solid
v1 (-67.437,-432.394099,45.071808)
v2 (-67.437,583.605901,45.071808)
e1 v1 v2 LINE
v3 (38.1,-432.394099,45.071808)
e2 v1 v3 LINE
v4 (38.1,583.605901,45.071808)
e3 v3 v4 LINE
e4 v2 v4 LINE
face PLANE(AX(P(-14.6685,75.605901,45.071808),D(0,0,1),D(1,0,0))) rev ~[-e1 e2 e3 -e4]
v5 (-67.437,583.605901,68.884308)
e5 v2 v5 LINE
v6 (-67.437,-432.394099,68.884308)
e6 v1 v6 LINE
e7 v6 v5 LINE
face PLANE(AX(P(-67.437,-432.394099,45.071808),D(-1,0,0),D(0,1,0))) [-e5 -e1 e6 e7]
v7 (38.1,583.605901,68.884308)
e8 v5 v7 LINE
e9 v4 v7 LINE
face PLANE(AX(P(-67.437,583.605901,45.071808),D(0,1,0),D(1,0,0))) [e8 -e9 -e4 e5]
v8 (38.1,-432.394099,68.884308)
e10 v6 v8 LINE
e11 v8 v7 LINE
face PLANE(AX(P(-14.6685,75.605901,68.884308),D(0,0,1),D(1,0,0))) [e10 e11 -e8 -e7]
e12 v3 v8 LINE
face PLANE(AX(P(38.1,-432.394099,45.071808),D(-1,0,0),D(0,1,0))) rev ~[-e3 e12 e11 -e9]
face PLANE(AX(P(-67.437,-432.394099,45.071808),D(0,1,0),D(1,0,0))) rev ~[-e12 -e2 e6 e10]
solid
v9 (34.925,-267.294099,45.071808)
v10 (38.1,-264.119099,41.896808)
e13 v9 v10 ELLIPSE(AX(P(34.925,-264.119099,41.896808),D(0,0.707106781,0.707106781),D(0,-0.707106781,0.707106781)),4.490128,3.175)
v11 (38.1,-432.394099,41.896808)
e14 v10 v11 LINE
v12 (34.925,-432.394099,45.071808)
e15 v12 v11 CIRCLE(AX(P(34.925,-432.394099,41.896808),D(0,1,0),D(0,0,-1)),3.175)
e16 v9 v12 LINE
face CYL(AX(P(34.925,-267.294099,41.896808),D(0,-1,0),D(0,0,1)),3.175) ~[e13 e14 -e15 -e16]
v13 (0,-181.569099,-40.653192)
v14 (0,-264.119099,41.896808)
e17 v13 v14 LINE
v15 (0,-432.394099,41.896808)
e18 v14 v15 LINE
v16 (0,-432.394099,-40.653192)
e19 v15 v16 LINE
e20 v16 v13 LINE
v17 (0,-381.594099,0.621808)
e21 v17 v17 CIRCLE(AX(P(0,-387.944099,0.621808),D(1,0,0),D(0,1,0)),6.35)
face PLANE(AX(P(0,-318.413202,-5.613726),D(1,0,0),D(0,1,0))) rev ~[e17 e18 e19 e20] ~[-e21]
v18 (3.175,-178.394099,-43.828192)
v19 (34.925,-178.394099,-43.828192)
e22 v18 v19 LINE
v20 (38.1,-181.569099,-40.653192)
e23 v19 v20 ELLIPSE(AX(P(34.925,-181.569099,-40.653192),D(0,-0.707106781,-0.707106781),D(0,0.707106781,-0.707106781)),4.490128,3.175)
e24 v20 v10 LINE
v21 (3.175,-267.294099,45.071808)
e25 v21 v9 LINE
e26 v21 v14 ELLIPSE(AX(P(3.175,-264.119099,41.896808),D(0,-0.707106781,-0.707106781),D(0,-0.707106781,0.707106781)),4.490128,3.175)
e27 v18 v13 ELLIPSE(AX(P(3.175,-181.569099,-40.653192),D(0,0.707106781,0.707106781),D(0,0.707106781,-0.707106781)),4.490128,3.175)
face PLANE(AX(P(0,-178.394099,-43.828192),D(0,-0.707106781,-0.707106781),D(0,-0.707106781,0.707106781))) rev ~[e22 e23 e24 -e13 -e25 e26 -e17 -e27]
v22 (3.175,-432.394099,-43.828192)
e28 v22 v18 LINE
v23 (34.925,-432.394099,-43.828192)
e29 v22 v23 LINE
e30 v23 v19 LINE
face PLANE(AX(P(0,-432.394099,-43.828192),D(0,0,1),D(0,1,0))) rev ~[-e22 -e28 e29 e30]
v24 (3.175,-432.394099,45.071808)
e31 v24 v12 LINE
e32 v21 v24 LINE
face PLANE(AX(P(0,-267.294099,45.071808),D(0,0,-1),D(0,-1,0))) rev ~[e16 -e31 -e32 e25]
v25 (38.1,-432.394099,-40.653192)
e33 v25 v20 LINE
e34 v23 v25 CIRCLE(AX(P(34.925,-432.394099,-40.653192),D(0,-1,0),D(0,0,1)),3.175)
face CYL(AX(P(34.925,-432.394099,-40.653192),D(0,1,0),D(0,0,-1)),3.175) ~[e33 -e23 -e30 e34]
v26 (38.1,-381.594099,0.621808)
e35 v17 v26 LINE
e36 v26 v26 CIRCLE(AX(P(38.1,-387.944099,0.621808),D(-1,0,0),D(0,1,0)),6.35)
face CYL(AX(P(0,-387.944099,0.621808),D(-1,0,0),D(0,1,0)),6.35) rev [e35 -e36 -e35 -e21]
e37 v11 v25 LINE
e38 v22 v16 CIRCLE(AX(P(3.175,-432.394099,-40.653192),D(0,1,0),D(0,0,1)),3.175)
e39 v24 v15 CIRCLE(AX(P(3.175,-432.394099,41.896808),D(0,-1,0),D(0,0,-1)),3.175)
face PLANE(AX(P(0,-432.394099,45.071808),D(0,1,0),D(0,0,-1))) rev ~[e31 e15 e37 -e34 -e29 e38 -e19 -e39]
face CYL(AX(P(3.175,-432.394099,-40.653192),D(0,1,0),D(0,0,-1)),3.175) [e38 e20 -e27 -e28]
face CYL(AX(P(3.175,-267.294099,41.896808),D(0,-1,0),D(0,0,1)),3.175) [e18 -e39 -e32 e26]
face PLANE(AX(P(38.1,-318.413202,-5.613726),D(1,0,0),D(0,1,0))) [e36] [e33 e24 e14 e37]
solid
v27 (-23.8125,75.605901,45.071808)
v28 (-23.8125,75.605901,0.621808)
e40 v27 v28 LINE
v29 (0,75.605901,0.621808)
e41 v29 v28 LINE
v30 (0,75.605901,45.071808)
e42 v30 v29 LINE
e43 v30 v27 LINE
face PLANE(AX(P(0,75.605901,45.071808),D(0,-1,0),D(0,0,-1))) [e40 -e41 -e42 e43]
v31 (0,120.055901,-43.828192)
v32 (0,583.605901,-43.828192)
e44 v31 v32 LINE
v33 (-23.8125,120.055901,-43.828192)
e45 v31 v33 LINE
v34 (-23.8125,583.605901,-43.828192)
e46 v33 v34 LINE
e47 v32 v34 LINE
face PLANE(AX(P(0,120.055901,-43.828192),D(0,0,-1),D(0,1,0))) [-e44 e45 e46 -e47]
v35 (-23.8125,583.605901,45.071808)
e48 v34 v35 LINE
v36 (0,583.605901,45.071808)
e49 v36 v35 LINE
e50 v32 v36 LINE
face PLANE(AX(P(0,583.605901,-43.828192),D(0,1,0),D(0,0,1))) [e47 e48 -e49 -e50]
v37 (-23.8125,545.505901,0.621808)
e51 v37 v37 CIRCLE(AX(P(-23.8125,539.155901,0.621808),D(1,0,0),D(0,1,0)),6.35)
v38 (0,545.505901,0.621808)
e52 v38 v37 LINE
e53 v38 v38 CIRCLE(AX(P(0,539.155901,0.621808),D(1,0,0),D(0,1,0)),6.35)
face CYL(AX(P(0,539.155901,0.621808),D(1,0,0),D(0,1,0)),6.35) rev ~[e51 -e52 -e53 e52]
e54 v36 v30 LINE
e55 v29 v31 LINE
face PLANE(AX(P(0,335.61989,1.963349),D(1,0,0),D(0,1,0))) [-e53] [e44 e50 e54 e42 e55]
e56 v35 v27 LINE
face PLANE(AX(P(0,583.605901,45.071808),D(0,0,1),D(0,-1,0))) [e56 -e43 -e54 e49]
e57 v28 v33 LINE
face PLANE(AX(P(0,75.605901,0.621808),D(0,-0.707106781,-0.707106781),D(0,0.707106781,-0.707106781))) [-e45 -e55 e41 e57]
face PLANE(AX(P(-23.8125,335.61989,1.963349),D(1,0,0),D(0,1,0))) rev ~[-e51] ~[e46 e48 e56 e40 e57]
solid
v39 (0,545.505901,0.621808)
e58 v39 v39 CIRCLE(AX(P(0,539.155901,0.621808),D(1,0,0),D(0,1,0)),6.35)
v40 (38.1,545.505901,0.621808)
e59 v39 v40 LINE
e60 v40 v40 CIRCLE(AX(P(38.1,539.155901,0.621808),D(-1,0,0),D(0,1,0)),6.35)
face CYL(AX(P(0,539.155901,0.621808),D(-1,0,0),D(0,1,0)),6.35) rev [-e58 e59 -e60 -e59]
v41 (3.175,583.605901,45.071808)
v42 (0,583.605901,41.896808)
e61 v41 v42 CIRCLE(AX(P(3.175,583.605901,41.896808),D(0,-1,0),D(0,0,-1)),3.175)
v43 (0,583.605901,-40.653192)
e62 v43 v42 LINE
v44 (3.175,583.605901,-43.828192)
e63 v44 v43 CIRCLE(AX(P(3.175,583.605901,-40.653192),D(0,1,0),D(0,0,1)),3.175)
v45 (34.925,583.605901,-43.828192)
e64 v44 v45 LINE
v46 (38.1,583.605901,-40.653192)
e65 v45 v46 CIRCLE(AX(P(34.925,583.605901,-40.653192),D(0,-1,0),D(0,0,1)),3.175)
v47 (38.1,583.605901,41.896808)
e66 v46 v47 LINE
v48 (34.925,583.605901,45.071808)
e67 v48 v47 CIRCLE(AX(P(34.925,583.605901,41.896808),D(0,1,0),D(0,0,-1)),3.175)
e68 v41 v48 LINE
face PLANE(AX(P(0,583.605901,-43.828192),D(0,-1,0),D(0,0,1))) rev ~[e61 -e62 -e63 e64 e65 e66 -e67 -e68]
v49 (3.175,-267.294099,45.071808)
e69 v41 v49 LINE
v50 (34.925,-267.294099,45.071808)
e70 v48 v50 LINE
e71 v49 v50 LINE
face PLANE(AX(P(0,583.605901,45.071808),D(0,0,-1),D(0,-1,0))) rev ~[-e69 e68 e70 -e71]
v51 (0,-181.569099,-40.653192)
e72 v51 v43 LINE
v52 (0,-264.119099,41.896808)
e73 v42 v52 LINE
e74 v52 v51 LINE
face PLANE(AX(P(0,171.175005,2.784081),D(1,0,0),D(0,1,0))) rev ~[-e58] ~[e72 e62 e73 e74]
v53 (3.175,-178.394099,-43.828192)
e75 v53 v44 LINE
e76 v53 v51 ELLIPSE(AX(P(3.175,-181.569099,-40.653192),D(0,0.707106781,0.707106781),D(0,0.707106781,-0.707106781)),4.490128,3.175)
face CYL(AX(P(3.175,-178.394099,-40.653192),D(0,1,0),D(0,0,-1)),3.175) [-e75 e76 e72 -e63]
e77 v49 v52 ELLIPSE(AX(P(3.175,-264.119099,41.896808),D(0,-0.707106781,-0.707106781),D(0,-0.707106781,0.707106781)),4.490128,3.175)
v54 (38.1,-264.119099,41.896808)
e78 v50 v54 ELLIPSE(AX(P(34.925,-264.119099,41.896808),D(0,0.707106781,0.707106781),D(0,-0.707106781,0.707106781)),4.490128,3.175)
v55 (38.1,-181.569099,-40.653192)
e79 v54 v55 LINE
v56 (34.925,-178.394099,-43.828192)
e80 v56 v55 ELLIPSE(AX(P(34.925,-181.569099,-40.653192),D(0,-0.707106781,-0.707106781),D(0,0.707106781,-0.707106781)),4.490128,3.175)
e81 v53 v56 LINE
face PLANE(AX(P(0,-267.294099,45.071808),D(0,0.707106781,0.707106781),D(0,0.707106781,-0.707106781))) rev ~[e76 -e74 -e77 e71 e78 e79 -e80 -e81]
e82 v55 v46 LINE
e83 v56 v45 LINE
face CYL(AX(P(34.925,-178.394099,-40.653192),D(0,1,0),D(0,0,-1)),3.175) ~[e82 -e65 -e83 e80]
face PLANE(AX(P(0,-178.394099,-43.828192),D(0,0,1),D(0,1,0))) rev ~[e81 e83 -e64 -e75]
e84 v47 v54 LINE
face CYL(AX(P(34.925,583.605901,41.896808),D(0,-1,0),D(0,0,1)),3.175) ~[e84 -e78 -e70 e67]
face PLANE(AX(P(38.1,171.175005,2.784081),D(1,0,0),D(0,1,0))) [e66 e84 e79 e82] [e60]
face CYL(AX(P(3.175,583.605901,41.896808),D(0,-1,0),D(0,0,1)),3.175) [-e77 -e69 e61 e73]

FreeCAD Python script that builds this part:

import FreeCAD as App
import Part
import Sketcher
from FreeCAD import Vector
Q = App.Units.Quantity


def edges_at(feature, points):
    """Names of the edges that pass closest to the given points."""
    edges = feature.Shape.Edges
    near = lambda p: min(range(len(edges)), key=lambda i: edges[i].distToShape(Part.Vertex(*p))[0])
    return sorted({f"Edge{near(p) + 1}" for p in points})


def add_polygon(sketch, points):
    """Adds a closed chain of lines whose ends are joined by coincident constraints."""
    first, n = sketch.GeometryCount, len(points)
    for a, b in zip(points, points[1:] + points[:1]):
        sketch.addGeometry(Part.LineSegment(App.Vector(*a, 0), App.Vector(*b, 0)), False)
    for i in range(n):
        sketch.addConstraint(Sketcher.Constraint("Coincident", first + i, 2, first + (i + 1) % n, 1))

doc = App.newDocument("Part")
body = doc.addObject("PartDesign::Body", "Body")

sketch1 = body.newObject("Sketcher::SketchObject", "Sketch")
sketch1.AttachmentSupport = (doc.getObject("YZ_Plane"), [""])
sketch1.MapMode = "FlatFace"
add_polygon(sketch1, [(584, 45), (-267, 45), (-178, -44), (584, -44)])
sketch1.addConstraint([
    Sketcher.Constraint("Horizontal", 0),
    Sketcher.Constraint("Horizontal", 2),
    Sketcher.Constraint("Vertical", 3),
    Sketcher.Constraint("DistanceX", 2, 1, 2, 2, Q("30 in")),
    Sketcher.Constraint("DistanceX", 0, 2, 0, 1, Q("33.5 in")),
    Sketcher.Constraint("DistanceY", 3, 1, 3, 2, Q("3.5 in")),
    Sketcher.Constraint("DistanceX", 0, 2, -1, 1, Q("267.294099 mm")),
    Sketcher.Constraint("DistanceY", -1, 1, 0, 2, Q("45.071808 mm")),
])
pad1 = body.newObject("PartDesign::Pad", "Pad")
pad1.Profile = sketch1
pad1.Length = Q("1.5 in")
doc.recompute()

fillet = body.newObject("PartDesign::Fillet", "Fillet")
fillet.Base = (pad1, edges_at(pad1, [
    (38.1, 158.156, 45.072),
    (0, 158.156, 45.072),
    (38.1, 202.606, -43.828),
    (0, 202.606, -43.828),
]))
fillet.Radius = Q("0.125 in")
body2 = doc.addObject("PartDesign::Body", "Body001")

sketch2 = body2.newObject("Sketcher::SketchObject", "Sketch001")
sketch2.AttachmentSupport = (doc.getObject("YZ_Plane001"), [""])
sketch2.MapMode = "FlatFace"
add_polygon(sketch2, [(-432, -44), (-178, -44), (-267, 45), (-432, 45)])
sketch2.addConstraint([
    Sketcher.Constraint("Horizontal", 0),
    Sketcher.Constraint("Horizontal", 2),
    Sketcher.Constraint("Vertical", 3),
    Sketcher.Constraint("DistanceX", 0, 1, 0, 2, Q("10 in")),
    Sketcher.Constraint("DistanceX", 2, 2, 2, 1, Q("6.5 in")),
    Sketcher.Constraint("DistanceY", 3, 2, 3, 1, Q("3.5 in")),
    Sketcher.Constraint("DistanceX", 0, 2, -1, 1, Q("178.394099 mm")),
    Sketcher.Constraint("DistanceY", 0, 2, -1, 1, Q("43.828192 mm")),
])
pad2 = body2.newObject("PartDesign::Pad", "Pad001")
pad2.Profile = sketch2
pad2.Length = Q("1.5 in")
doc.recompute()

fillet2 = body2.newObject("PartDesign::Fillet", "Fillet001")
fillet2.Base = (pad2, edges_at(pad2, [
    (38.1, -349.844, 45.072),
    (0, -349.844, 45.072),
    (38.1, -305.394, -43.828),
    (0, -305.394, -43.828),
]))
fillet2.Radius = Q("0.125 in")
body3 = doc.addObject("PartDesign::Body", "Body002")

sketch3 = body3.newObject("Sketcher::SketchObject", "Sketch002")
sketch3.AttachmentSupport = (doc.getObject("YZ_Plane002"), [""])
sketch3.MapMode = "FlatFace"
add_polygon(sketch3, [(584, -44), (584, 45), (76, 45), (76, 1), (120, -44)])
sketch3.addConstraint([
    Sketcher.Constraint("Vertical", 0),
    Sketcher.Constraint("Horizontal", 1),
    Sketcher.Constraint("Vertical", 2),
    Sketcher.Constraint("Horizontal", 4),
    Sketcher.Constraint("DistanceX", 1, 2, 1, 1, Q("20 in")),
    Sketcher.Constraint("DistanceY", 0, 1, 0, 2, Q("3.5 in")),
    Sketcher.Constraint("Angle", 3, Q("-45 deg")),
    Sketcher.Constraint("DistanceX", 4, 1, 4, 2, Q("18.25 in")),
    Sketcher.Constraint("DistanceX", -1, 1, 0, 2, Q("583.605901 mm")),
    Sketcher.Constraint("DistanceY", -1, 1, 0, 2, Q("45.071808 mm")),
])
pad3 = body3.newObject("PartDesign::Pad", "Pad002")
pad3.Profile = sketch3
pad3.Length = Q("0.9375 in")
pad3.Reversed = True
body4 = doc.addObject("PartDesign::Body", "Body003")

sketch4 = body4.newObject("Sketcher::SketchObject", "Sketch003")
sketch4.AttachmentSupport = (doc.getObject("XY_Plane003"), [""])
sketch4.MapMode = "FlatFace"
sketch4.AttachmentOffset = App.Placement(Vector(0, 0, 45.071808), App.Rotation())
add_polygon(sketch4, [(-67, 584), (-67, -432), (38, -432), (38, 584)])
sketch4.addConstraint([
    Sketcher.Constraint("Vertical", 0),
    Sketcher.Constraint("Horizontal", 1),
    Sketcher.Constraint("Vertical", 2),
    Sketcher.Constraint("Horizontal", 3),
    Sketcher.Constraint("DistanceY", 0, 2, 0, 1, Q("40 in")),
    Sketcher.Constraint("DistanceX", -1, 1, 1, 2, Q("1.5 in")),
    Sketcher.Constraint("DistanceX", 1, 1, 1, 2, Q("4.155 in")),
    Sketcher.Constraint("DistanceY", 0, 2, -1, 1, Q("432.394099 mm")),
])
pad4 = body4.newObject("PartDesign::Pad", "Pad003")
pad4.Profile = sketch4
pad4.Length = Q("0.9375 in")
body5 = doc.addObject("PartDesign::Body", "Body004")
body5.AllowCompound = True

sketch5 = body5.newObject("Sketcher::SketchObject", "Sketch004")
sketch5.AttachmentSupport = (doc.getObject("YZ_Plane004"), [""])
sketch5.MapMode = "FlatFace"
sketch5.addGeometry([
    Part.Circle(Vector(-388, 1, 0), Vector(0, 0, 1), 6),
    Part.Circle(Vector(539, 1, 0), Vector(0, 0, 1), 6),
], False)
sketch5.addConstraint([
    Sketcher.Constraint("Equal", 0, 1),
    Sketcher.Constraint("Horizontal", 0, 3, 1, 3),
    Sketcher.Constraint("Diameter", 0, Q("0.5 in")),
    Sketcher.Constraint("DistanceX", 0, 3, 1, 3, Q("36.5 in")),
    Sketcher.Constraint("DistanceX", 0, 3, -1, 1, Q("387.944099 mm")),
    Sketcher.Constraint("DistanceY", -1, 1, 0, 3, Q("0.621808 mm")),
])
pad5 = body5.newObject("PartDesign::Pad", "Pad004")
pad5.Profile = sketch5
pad5.Type = "TwoLengths"
pad5.Length = 67.438
pad5.Length2 = 38.101
pad5.Reversed = True
doc.recompute()

body6 = doc.addObject("PartDesign::Body", "Body005")
body6.BaseFeature = body5
boolean = body.newObject("PartDesign::Boolean", "Boolean")
boolean.Type = "Cut"
boolean.addObjects([body6])
doc.recompute()

body7 = doc.addObject("PartDesign::Body", "Body006")
body7.BaseFeature = body5
boolean2 = body2.newObject("PartDesign::Boolean", "Boolean001")
boolean2.Type = "Cut"
boolean2.addObjects([body7])
doc.recompute()

boolean3 = body3.newObject("PartDesign::Boolean", "Boolean002")
boolean3.Type = "Cut"
boolean3.addObjects([body5])

doc.recompute()
